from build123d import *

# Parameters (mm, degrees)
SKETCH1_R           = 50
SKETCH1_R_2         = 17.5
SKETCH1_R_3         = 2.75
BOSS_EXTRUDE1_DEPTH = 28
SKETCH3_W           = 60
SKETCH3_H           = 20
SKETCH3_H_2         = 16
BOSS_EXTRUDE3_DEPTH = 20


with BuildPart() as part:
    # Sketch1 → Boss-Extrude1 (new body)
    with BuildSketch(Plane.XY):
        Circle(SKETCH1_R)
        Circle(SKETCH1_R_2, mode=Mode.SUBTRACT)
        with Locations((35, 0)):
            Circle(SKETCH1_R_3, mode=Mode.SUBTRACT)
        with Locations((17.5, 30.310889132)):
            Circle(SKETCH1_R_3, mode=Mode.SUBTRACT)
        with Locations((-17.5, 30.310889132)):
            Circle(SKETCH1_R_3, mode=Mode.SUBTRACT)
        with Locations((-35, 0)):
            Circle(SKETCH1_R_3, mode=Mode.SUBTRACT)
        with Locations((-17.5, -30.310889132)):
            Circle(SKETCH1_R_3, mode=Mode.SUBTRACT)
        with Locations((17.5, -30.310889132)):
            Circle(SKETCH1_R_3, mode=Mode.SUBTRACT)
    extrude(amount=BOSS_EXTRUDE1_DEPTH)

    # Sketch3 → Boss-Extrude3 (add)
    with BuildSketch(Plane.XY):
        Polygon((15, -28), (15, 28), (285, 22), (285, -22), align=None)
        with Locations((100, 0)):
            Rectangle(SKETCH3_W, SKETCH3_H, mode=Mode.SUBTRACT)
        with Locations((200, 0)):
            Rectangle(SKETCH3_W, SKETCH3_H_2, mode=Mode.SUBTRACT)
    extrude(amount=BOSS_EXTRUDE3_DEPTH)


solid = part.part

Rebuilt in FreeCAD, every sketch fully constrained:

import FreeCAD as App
import Part
import Sketcher
Q = App.Units.Quantity


def add_polygon(sketch, points):
    """Adds a closed chain of lines whose ends are joined by coincident constraints."""
    first, n = sketch.GeometryCount, len(points)
    for a, b in zip(points, points[1:] + points[:1]):
        sketch.addGeometry(Part.LineSegment(App.Vector(*a, 0), App.Vector(*b, 0)), False)
    for i in range(n):
        sketch.addConstraint(Sketcher.Constraint("Coincident", first + i, 2, first + (i + 1) % n, 1))

doc = App.newDocument("Part")
body = doc.addObject("PartDesign::Body", "Body")

sketch1 = body.newObject("Sketcher::SketchObject", "Sketch")
sketch1.AttachmentSupport = (doc.getObject("XY_Plane"), [""])
sketch1.MapMode = "FlatFace"
sketch1.addGeometry(Part.Circle(App.Vector(0, 0, 0), App.Vector(0, 0, 1), 50), False)
sketch1.addGeometry(Part.Circle(App.Vector(-17.5, -30.3, 0), App.Vector(0, 0, 1), 2.8), False)
sketch1.addGeometry(Part.Circle(App.Vector(17.5, -30.3, 0), App.Vector(0, 0, 1), 2.8), False)
sketch1.addGeometry(Part.Circle(App.Vector(-35, 0, 0), App.Vector(0, 0, 1), 2.8), False)
sketch1.addGeometry(Part.Circle(App.Vector(-17.5, 30.3, 0), App.Vector(0, 0, 1), 2.8), False)
sketch1.addGeometry(Part.Circle(App.Vector(0, 0, 0), App.Vector(0, 0, 1), 17.5), False)
sketch1.addGeometry(Part.Circle(App.Vector(35, 0, 0), App.Vector(0, 0, 1), 2.8), False)
sketch1.addGeometry(Part.Circle(App.Vector(17.5, 30.3, 0), App.Vector(0, 0, 1), 2.8), False)
sketch1.addConstraint(Sketcher.Constraint("Coincident", 0, 3, -1, 1))
sketch1.addConstraint(Sketcher.Constraint("Coincident", 5, 3, -1, 1))
sketch1.addConstraint(Sketcher.Constraint("Equal", 1, 2))
sketch1.addConstraint(Sketcher.Constraint("Equal", 2, 3))
sketch1.addConstraint(Sketcher.Constraint("Equal", 3, 4))
sketch1.addConstraint(Sketcher.Constraint("Equal", 4, 6))
sketch1.addConstraint(Sketcher.Constraint("Equal", 6, 7))
sketch1.addConstraint(Sketcher.Constraint("Symmetric", 2, 3, 4, 3, -1, 1))
sketch1.addConstraint(Sketcher.Constraint("Symmetric", 3, 3, 6, 3, -1, 1))
sketch1.addConstraint(Sketcher.Constraint("Symmetric", 1, 3, 7, 3, -1, 1))
sketch1.addConstraint(Sketcher.Constraint("Symmetric", 1, 3, 2, 3, -2))
sketch1.addConstraint(Sketcher.Constraint("PointOnObject", 3, 3, -1))
sketch1.addConstraint(Sketcher.Constraint("Diameter", 0, Q("100 mm")))
sketch1.addConstraint(Sketcher.Constraint("Diameter", 5, Q("35 mm")))
sketch1.addConstraint(Sketcher.Constraint("Diameter", 1, Q("5.5 mm")))
sketch1.addConstraint(Sketcher.Constraint("DistanceX", 3, 3, -1, 1, Q("35 mm")))
sketch1.addConstraint(Sketcher.Constraint("DistanceX", 1, 3, 2, 3, Q("35 mm")))
sketch1.addConstraint(Sketcher.Constraint("DistanceY", 1, 3, -1, 1, Q("30.310889 mm")))
pad1 = body.newObject("PartDesign::Pad", "Pad")
pad1.Profile = sketch1
pad1.Length = 28

sketch2 = body.newObject("Sketcher::SketchObject", "Sketch001")
sketch2.AttachmentSupport = (doc.getObject("XY_Plane"), [""])
sketch2.MapMode = "FlatFace"
add_polygon(sketch2, [(15, 28), (15, -28), (285, -22), (285, 22)])
add_polygon(sketch2, [(170, -8), (170, 8), (230, 8), (230, -8)])
add_polygon(sketch2, [(70, -10), (70, 10), (130, 10), (130, -10)])
sketch2.addConstraint(Sketcher.Constraint("Vertical", 0))
sketch2.addConstraint(Sketcher.Constraint("Vertical", 2))
sketch2.addConstraint(Sketcher.Constraint("Vertical", 4))
sketch2.addConstraint(Sketcher.Constraint("Horizontal", 5))
sketch2.addConstraint(Sketcher.Constraint("Vertical", 6))
sketch2.addConstraint(Sketcher.Constraint("Horizontal", 7))
sketch2.addConstraint(Sketcher.Constraint("Vertical", 8))
sketch2.addConstraint(Sketcher.Constraint("Horizontal", 9))
sketch2.addConstraint(Sketcher.Constraint("Vertical", 10))
sketch2.addConstraint(Sketcher.Constraint("Horizontal", 11))
sketch2.addConstraint(Sketcher.Constraint("Equal", 7, 9))
sketch2.addConstraint(Sketcher.Constraint("Equal", 1, 3))
sketch2.addConstraint(Sketcher.Constraint("DistanceX", 5, 1, 5, 2, Q("60 mm")))
sketch2.addConstraint(Sketcher.Constraint("DistanceY", 0, 2, 0, 1, Q("56 mm")))
sketch2.addConstraint(Sketcher.Constraint("DistanceY", 2, 1, 2, 2, Q("44 mm")))
sketch2.addConstraint(Sketcher.Constraint("DistanceY", 4, 1, 4, 2, Q("16 mm")))
sketch2.addConstraint(Sketcher.Constraint("DistanceY", 8, 1, 8, 2, Q("20 mm")))
sketch2.addConstraint(Sketcher.Constraint("DistanceX", -1, 1, 0, 2, Q("15 mm")))
sketch2.addConstraint(Sketcher.Constraint("DistanceY", 0, 2, -1, 1, Q("28 mm")))
sketch2.addConstraint(Sketcher.Constraint("DistanceX", -1, 1, 1, 2, Q("285 mm")))
sketch2.addConstraint(Sketcher.Constraint("DistanceX", -1, 1, 4, 2, Q("170 mm")))
sketch2.addConstraint(Sketcher.Constraint("DistanceY", -1, 1, 4, 2, Q("8 mm")))
sketch2.addConstraint(Sketcher.Constraint("DistanceX", -1, 1, 8, 2, Q("70 mm")))
sketch2.addConstraint(Sketcher.Constraint("DistanceY", -1, 1, 8, 2, Q("10 mm")))
pad2 = body.newObject("PartDesign::Pad", "Pad001")
pad2.Profile = sketch2
pad2.Length = 20

doc.recompute()
